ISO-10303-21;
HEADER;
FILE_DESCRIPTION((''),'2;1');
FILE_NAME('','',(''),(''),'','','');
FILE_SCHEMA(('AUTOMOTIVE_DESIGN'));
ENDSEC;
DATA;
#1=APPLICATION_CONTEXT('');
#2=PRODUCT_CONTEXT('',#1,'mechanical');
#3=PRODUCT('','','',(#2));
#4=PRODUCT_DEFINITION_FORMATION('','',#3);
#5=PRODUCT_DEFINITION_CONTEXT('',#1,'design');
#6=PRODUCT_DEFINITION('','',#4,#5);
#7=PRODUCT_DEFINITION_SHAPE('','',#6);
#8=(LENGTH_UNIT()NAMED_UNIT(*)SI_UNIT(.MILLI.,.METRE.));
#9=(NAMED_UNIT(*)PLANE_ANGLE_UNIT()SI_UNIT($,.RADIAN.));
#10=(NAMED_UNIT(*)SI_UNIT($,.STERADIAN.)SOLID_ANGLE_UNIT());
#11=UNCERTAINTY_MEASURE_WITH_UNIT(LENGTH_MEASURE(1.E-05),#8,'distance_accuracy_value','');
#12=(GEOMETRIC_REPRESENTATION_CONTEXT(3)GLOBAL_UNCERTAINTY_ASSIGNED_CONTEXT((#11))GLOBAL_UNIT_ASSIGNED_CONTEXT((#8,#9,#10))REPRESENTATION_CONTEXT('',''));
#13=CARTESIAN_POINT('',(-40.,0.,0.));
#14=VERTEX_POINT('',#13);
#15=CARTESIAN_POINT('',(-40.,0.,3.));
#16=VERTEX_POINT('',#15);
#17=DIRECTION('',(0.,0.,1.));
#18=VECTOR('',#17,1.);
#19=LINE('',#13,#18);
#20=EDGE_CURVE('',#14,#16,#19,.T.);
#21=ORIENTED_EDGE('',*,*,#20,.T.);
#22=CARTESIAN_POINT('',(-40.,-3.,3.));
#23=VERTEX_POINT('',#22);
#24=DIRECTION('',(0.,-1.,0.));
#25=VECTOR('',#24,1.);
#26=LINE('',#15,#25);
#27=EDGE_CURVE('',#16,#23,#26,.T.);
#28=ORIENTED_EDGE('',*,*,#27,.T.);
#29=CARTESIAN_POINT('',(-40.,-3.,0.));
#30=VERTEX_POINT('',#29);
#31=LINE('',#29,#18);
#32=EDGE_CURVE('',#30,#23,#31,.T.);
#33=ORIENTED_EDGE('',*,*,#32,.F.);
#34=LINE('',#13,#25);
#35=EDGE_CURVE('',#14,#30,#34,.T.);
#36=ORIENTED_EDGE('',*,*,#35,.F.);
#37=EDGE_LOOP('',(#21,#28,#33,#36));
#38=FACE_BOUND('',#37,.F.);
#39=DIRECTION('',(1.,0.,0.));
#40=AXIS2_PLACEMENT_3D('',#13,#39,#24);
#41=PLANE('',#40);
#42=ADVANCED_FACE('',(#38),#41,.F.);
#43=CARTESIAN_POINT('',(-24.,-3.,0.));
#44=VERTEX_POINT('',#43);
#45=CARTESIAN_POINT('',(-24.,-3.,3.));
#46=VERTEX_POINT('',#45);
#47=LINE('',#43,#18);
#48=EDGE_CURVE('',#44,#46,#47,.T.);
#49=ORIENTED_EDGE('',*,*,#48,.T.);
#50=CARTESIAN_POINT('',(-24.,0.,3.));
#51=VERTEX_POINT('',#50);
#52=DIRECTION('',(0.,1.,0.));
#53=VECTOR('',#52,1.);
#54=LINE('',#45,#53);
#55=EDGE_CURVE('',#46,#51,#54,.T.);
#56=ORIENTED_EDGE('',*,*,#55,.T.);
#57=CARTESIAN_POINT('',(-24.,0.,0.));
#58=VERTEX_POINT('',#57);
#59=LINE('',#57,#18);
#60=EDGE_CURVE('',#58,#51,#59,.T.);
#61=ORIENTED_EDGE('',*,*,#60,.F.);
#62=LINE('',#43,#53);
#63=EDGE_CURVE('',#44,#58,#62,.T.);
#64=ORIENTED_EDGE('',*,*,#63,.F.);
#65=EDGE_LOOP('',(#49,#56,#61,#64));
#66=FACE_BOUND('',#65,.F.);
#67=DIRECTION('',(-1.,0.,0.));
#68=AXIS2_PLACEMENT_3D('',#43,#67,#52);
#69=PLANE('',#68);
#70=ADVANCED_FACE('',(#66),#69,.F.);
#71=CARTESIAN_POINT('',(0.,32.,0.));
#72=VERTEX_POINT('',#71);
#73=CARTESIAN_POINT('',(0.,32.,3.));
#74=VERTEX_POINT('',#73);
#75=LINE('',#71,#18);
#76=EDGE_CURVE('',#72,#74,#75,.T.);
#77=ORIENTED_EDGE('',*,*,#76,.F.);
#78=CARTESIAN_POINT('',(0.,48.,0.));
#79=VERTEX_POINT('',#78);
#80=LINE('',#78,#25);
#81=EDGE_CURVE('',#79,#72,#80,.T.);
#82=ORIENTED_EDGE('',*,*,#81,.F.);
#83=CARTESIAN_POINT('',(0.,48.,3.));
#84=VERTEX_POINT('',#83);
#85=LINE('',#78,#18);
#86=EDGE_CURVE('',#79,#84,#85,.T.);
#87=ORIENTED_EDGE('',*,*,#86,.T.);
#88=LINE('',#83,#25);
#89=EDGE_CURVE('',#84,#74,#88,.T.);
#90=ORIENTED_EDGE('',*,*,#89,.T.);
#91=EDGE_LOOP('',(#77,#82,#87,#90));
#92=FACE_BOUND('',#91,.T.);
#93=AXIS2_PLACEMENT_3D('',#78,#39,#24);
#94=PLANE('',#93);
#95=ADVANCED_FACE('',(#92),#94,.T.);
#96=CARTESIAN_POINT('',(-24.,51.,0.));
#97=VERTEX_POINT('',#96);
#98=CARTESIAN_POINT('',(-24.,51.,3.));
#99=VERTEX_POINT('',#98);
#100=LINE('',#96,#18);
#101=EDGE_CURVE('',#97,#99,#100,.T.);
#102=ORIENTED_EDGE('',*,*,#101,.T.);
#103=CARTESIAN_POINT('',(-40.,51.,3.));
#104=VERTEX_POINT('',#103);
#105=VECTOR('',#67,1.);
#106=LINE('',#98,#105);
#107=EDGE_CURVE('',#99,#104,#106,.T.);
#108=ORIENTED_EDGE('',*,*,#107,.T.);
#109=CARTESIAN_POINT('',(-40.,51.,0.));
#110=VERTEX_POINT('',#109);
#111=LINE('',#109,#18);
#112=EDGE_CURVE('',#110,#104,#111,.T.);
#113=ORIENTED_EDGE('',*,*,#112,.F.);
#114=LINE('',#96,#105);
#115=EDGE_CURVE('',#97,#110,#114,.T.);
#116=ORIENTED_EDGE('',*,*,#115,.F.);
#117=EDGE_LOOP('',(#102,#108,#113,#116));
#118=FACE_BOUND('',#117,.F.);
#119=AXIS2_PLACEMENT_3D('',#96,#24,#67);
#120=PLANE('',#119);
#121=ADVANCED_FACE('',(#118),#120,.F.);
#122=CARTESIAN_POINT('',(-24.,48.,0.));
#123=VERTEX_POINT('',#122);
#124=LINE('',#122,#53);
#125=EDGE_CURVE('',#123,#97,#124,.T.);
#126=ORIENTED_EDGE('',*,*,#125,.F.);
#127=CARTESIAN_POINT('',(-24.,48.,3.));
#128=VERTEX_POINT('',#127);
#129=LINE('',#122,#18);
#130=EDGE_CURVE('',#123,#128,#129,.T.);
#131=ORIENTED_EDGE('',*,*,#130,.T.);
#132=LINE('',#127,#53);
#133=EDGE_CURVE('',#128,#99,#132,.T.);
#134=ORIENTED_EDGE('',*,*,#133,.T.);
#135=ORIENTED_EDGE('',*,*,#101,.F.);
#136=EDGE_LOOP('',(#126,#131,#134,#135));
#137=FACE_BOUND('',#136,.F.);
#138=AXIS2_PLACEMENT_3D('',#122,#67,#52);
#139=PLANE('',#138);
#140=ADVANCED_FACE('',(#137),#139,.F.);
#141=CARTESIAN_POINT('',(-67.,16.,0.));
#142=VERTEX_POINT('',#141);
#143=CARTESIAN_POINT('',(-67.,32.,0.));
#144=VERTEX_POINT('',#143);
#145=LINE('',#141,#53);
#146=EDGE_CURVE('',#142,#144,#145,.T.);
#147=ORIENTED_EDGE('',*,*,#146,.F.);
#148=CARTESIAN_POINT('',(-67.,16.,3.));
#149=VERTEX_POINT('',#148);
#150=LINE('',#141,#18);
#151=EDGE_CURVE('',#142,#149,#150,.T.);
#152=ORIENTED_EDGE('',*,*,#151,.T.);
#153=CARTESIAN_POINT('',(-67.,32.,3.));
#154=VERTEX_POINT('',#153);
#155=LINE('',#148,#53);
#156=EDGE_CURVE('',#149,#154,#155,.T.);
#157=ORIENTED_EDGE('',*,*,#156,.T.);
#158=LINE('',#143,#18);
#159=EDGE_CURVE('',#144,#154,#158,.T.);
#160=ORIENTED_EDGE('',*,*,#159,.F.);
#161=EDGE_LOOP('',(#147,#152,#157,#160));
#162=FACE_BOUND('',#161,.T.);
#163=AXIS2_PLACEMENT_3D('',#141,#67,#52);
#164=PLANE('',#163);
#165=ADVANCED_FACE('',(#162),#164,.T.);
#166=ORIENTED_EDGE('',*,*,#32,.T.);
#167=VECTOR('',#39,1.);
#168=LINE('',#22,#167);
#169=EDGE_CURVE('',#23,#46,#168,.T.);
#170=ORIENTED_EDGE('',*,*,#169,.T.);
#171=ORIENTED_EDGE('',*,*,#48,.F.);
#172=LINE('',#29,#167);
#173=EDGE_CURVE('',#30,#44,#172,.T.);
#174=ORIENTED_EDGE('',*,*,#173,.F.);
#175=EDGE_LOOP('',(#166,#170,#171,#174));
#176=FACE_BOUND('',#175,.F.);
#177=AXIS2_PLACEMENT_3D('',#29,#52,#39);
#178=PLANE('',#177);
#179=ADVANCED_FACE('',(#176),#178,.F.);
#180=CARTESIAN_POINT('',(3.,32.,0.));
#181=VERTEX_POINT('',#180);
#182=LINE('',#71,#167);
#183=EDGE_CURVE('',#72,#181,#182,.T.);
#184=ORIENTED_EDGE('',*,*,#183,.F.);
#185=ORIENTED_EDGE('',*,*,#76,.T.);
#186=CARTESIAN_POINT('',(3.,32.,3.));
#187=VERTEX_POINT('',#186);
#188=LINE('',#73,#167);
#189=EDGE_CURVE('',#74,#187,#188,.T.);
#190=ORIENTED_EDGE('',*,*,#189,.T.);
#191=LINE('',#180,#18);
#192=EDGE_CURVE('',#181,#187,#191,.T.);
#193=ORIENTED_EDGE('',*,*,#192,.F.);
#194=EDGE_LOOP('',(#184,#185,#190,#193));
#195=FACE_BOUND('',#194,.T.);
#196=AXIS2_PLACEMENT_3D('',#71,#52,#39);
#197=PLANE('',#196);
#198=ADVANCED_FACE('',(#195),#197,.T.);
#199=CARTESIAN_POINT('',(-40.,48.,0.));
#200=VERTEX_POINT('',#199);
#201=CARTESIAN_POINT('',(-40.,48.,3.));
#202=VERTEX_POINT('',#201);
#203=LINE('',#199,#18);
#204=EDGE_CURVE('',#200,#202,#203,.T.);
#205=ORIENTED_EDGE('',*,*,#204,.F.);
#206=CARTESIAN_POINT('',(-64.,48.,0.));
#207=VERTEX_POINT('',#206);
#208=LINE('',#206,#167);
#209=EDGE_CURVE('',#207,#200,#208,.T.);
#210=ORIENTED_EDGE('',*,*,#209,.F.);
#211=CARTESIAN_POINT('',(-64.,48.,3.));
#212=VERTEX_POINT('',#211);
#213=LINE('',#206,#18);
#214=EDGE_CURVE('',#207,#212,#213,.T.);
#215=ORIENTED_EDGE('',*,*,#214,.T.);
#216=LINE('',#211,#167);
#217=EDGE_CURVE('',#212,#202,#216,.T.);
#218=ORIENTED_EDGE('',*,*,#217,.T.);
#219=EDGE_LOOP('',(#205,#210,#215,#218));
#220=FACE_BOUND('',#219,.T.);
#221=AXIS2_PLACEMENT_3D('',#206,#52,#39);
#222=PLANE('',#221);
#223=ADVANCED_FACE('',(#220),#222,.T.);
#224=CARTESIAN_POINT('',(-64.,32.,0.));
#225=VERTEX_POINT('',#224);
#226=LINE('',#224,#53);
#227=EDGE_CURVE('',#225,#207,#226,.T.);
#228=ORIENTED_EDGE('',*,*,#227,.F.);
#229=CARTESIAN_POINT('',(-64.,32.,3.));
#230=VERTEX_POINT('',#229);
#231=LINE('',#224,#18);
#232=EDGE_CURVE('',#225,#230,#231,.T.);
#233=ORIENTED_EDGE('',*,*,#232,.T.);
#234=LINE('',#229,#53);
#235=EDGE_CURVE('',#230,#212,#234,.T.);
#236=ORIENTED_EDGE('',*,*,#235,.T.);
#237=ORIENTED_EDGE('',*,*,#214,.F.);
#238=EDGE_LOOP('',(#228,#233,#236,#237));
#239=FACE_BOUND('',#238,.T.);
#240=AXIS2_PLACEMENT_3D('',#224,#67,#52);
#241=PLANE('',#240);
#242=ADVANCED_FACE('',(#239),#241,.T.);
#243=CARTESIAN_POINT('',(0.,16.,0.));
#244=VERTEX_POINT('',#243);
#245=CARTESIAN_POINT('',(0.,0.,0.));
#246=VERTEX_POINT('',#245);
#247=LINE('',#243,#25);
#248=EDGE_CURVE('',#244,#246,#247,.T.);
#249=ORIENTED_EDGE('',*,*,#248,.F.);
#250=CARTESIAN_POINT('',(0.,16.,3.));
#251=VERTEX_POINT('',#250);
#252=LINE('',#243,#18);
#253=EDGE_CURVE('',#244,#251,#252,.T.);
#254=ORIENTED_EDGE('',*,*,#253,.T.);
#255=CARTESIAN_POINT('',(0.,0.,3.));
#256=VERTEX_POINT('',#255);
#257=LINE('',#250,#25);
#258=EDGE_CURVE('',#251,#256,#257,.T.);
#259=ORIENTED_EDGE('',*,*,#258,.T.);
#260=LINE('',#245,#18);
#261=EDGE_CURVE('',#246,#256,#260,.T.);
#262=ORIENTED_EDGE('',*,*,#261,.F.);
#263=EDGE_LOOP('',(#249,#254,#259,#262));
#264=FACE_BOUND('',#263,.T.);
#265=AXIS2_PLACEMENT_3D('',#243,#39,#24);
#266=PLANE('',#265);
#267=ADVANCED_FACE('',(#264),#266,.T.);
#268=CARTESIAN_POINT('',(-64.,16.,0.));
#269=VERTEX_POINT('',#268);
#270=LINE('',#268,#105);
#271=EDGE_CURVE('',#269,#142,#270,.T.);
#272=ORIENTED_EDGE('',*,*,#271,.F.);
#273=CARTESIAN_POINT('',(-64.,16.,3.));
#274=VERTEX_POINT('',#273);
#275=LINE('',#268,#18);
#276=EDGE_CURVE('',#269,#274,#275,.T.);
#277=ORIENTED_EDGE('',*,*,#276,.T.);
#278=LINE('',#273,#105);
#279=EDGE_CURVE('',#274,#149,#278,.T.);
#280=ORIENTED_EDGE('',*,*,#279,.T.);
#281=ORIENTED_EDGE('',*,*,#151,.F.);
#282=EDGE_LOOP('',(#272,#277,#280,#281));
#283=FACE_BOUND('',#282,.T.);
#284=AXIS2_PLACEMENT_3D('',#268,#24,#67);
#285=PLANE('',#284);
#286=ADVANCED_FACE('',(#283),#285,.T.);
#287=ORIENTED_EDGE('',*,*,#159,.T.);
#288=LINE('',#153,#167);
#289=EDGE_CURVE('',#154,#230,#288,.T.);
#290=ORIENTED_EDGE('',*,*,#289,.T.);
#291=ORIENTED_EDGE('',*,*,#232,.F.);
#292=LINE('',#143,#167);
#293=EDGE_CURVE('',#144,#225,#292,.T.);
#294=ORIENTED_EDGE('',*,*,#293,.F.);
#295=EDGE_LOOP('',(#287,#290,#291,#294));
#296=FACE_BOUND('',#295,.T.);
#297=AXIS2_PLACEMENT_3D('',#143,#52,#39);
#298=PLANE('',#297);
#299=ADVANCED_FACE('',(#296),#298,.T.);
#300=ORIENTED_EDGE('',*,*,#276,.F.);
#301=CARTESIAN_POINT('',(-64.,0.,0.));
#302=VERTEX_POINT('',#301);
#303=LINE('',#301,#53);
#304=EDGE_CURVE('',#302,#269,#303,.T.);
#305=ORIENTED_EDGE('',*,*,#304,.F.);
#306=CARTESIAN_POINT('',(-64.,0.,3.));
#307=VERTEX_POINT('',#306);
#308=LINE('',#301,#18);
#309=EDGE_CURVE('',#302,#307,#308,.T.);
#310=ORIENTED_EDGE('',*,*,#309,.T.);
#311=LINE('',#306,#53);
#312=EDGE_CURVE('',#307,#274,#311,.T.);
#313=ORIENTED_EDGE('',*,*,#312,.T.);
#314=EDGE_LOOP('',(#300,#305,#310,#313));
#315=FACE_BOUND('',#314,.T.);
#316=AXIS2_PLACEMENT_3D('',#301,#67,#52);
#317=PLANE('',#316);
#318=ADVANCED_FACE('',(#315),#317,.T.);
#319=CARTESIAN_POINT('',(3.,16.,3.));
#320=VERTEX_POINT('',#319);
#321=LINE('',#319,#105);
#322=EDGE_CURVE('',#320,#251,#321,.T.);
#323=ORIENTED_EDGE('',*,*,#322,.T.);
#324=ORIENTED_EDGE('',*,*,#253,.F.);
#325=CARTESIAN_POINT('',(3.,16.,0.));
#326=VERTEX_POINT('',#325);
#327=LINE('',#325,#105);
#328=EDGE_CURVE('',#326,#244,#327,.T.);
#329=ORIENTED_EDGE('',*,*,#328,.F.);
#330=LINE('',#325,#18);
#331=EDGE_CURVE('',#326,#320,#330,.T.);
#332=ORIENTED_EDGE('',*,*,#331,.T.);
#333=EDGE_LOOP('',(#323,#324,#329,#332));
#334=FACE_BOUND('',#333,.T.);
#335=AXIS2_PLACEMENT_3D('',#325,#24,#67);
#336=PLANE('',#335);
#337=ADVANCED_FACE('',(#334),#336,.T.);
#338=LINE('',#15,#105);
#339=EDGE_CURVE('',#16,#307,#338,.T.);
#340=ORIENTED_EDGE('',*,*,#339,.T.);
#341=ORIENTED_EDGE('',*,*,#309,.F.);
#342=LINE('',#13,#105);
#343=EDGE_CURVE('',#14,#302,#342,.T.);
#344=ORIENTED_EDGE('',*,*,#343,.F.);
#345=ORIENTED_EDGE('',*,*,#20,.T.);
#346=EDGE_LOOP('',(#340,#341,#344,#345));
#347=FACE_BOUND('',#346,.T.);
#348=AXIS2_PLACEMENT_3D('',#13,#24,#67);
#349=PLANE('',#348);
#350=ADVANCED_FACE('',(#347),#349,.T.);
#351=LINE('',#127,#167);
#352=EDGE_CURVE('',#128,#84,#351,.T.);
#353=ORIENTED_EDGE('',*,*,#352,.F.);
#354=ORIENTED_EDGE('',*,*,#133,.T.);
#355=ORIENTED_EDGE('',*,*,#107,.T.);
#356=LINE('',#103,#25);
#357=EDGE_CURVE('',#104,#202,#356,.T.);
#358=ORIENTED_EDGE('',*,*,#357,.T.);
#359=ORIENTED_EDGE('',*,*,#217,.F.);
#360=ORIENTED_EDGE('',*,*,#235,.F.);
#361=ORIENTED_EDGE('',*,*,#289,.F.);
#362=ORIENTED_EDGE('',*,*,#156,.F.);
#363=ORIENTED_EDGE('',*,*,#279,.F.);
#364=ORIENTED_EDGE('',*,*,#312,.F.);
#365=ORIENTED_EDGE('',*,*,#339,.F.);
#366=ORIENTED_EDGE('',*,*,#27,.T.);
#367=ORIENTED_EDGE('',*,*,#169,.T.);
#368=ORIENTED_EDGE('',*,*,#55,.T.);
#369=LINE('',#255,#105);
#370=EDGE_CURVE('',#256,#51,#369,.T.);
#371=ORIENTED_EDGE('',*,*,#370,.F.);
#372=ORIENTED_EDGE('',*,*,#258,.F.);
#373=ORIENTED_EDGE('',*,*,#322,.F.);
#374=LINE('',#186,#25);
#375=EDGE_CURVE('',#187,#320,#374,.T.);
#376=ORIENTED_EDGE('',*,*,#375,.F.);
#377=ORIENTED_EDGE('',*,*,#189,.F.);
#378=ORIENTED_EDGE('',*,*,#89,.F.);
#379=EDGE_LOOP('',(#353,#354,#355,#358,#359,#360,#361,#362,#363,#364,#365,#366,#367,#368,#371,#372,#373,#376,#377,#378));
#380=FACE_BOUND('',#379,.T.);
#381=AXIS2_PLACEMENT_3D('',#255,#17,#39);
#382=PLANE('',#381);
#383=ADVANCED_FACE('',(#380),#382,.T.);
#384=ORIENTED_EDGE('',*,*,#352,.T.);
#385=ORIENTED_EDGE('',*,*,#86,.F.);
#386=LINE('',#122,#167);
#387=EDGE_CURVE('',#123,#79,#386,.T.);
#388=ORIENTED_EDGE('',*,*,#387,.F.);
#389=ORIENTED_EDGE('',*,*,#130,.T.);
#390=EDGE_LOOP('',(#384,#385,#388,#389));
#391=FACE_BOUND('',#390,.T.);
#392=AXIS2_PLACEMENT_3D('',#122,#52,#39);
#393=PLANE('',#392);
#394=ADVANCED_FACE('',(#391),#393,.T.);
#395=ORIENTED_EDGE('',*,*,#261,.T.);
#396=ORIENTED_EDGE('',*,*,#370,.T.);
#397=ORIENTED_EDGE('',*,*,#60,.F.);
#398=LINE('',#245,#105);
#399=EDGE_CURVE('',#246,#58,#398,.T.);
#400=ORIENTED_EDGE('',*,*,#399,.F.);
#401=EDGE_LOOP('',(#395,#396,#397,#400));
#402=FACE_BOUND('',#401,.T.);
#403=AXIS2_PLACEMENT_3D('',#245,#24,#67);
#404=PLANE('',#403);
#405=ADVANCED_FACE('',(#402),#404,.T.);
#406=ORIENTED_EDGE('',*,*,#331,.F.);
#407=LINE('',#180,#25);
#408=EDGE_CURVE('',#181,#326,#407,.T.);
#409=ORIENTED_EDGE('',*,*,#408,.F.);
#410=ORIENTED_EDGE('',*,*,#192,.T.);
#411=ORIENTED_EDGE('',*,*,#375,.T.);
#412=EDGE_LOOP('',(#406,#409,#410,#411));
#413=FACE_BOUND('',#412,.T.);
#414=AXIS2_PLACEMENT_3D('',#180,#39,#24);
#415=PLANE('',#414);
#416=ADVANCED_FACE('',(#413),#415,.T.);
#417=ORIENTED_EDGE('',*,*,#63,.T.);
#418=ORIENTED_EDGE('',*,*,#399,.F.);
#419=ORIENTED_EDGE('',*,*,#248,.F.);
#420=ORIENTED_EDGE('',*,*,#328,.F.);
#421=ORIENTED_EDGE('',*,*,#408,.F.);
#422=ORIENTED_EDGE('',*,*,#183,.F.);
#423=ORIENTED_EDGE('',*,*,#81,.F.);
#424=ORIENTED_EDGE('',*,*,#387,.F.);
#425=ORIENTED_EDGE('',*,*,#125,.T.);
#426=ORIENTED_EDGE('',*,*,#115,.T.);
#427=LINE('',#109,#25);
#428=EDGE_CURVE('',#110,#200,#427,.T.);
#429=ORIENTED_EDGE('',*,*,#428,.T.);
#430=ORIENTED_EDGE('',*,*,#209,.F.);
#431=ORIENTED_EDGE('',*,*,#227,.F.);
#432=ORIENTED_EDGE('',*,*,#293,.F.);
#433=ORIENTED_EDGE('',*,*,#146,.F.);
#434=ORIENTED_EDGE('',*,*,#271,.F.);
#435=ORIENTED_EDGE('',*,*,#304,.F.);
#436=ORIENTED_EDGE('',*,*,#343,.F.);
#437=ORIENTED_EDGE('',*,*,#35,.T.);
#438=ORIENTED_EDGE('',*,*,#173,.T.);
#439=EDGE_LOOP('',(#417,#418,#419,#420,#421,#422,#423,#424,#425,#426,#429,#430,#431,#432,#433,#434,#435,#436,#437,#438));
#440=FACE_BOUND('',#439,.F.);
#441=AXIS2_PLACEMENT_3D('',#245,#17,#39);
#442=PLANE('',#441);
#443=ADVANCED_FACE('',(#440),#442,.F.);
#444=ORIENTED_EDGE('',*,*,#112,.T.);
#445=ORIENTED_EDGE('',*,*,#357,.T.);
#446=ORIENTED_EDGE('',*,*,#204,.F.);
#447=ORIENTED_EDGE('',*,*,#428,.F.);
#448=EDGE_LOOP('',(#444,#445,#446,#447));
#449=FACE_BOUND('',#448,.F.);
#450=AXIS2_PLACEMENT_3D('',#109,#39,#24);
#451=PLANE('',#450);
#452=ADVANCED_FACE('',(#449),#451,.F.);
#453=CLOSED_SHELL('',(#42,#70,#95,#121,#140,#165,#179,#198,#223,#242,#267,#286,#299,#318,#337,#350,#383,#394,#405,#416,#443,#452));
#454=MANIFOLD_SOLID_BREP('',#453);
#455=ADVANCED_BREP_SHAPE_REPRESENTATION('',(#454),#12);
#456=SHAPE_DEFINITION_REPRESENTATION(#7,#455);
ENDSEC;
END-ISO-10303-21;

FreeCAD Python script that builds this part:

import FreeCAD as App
import Part
import Sketcher

V = App.Vector
Q = App.Units.Quantity

doc = App.newDocument("Part")
params = doc.addObject("Spreadsheet::Sheet", "Params")
for row, (alias, value) in enumerate([
    ("sketch1_width", "24 mm"),
    ("sketch1_width2", "16 mm"),
    ("sketch1_width3", "3 mm"),
    ("pad1_length", "3 mm"),
], start=1):
    params.set(f"A{row}", alias)
    params.set(f"B{row}", "=" + value)
    params.setAlias(f"B{row}", alias)

body = doc.addObject("PartDesign::Body", "Body")

# Sketch on XY plane
sketch1 = body.newObject("Sketcher::SketchObject", "Sketch")
sketch1.AttachmentSupport = (doc.getObject("XY_Plane"), [""])
sketch1.MapMode = "FlatFace"
sketch1.addGeometry(Part.LineSegment(V(0, 48, 0), V(-24, 48, 0)), False)
sketch1.addGeometry(Part.LineSegment(V(-24, 48, 0), V(-24, 51, 0)), False)
sketch1.addGeometry(Part.LineSegment(V(-24, 51, 0), V(-40, 51, 0)), False)
sketch1.addGeometry(Part.LineSegment(V(-40, 51, 0), V(-40, 48, 0)), False)
sketch1.addGeometry(Part.LineSegment(V(-40, 48, 0), V(-64, 48, 0)), False)
sketch1.addGeometry(Part.LineSegment(V(-64, 48, 0), V(-64, 32, 0)), False)
sketch1.addGeometry(Part.LineSegment(V(-64, 32, 0), V(-67, 32, 0)), False)
sketch1.addGeometry(Part.LineSegment(V(-67, 32, 0), V(-67, 16, 0)), False)
sketch1.addGeometry(Part.LineSegment(V(-67, 16, 0), V(-64, 16, 0)), False)
sketch1.addGeometry(Part.LineSegment(V(-64, 16, 0), V(-64, 0, 0)), False)
sketch1.addGeometry(Part.LineSegment(V(-64, 0, 0), V(-40, 0, 0)), False)
sketch1.addGeometry(Part.LineSegment(V(-40, 0, 0), V(-40, -3, 0)), False)
sketch1.addGeometry(Part.LineSegment(V(-40, -3, 0), V(-24, -3, 0)), False)
sketch1.addGeometry(Part.LineSegment(V(-24, -3, 0), V(-24, 0, 0)), False)
sketch1.addGeometry(Part.LineSegment(V(-24, 0, 0), V(0, 0, 0)), False)
sketch1.addGeometry(Part.LineSegment(V(0, 0, 0), V(0, 16, 0)), False)
sketch1.addGeometry(Part.LineSegment(V(0, 16, 0), V(3, 16, 0)), False)
sketch1.addGeometry(Part.LineSegment(V(3, 16, 0), V(3, 32, 0)), False)
sketch1.addGeometry(Part.LineSegment(V(3, 32, 0), V(0, 32, 0)), False)
sketch1.addGeometry(Part.LineSegment(V(0, 32, 0), V(0, 48, 0)), False)
sketch1.addConstraint(Sketcher.Constraint("Coincident", 0, 2, 1, 1))
sketch1.addConstraint(Sketcher.Constraint("Coincident", 1, 2, 2, 1))
sketch1.addConstraint(Sketcher.Constraint("Coincident", 2, 2, 3, 1))
sketch1.addConstraint(Sketcher.Constraint("Coincident", 3, 2, 4, 1))
sketch1.addConstraint(Sketcher.Constraint("Coincident", 4, 2, 5, 1))
sketch1.addConstraint(Sketcher.Constraint("Coincident", 5, 2, 6, 1))
sketch1.addConstraint(Sketcher.Constraint("Coincident", 6, 2, 7, 1))
sketch1.addConstraint(Sketcher.Constraint("Coincident", 7, 2, 8, 1))
sketch1.addConstraint(Sketcher.Constraint("Coincident", 8, 2, 9, 1))
sketch1.addConstraint(Sketcher.Constraint("Coincident", 9, 2, 10, 1))
sketch1.addConstraint(Sketcher.Constraint("Coincident", 10, 2, 11, 1))
sketch1.addConstraint(Sketcher.Constraint("Coincident", 11, 2, 12, 1))
sketch1.addConstraint(Sketcher.Constraint("Coincident", 12, 2, 13, 1))
sketch1.addConstraint(Sketcher.Constraint("Coincident", 13, 2, 14, 1))
sketch1.addConstraint(Sketcher.Constraint("Coincident", 14, 2, 15, 1))
sketch1.addConstraint(Sketcher.Constraint("Coincident", 15, 2, 16, 1))
sketch1.addConstraint(Sketcher.Constraint("Coincident", 16, 2, 17, 1))
sketch1.addConstraint(Sketcher.Constraint("Coincident", 17, 2, 18, 1))
sketch1.addConstraint(Sketcher.Constraint("Coincident", 18, 2, 19, 1))
sketch1.addConstraint(Sketcher.Constraint("Coincident", 19, 2, 0, 1))
sketch1.addConstraint(Sketcher.Constraint("Horizontal", 0))
sketch1.addConstraint(Sketcher.Constraint("Vertical", 1))
sketch1.addConstraint(Sketcher.Constraint("Horizontal", 2))
sketch1.addConstraint(Sketcher.Constraint("Vertical", 3))
sketch1.addConstraint(Sketcher.Constraint("Horizontal", 4))
sketch1.addConstraint(Sketcher.Constraint("Vertical", 5))
sketch1.addConstraint(Sketcher.Constraint("Horizontal", 6))
sketch1.addConstraint(Sketcher.Constraint("Vertical", 7))
sketch1.addConstraint(Sketcher.Constraint("Horizontal", 8))
sketch1.addConstraint(Sketcher.Constraint("Vertical", 9))
sketch1.addConstraint(Sketcher.Constraint("Horizontal", 10))
sketch1.addConstraint(Sketcher.Constraint("Vertical", 11))
sketch1.addConstraint(Sketcher.Constraint("Horizontal", 12))
sketch1.addConstraint(Sketcher.Constraint("Vertical", 13))
sketch1.addConstraint(Sketcher.Constraint("Horizontal", 14))
sketch1.addConstraint(Sketcher.Constraint("Vertical", 15))
sketch1.addConstraint(Sketcher.Constraint("Horizontal", 16))
sketch1.addConstraint(Sketcher.Constraint("Vertical", 17))
sketch1.addConstraint(Sketcher.Constraint("Horizontal", 18))
sketch1.addConstraint(Sketcher.Constraint("Vertical", 19))
sketch1.addConstraint(Sketcher.Constraint("Coincident", 14, 2, -1, 1))
sketch1.addConstraint(Sketcher.Constraint("PointOnObject", 9, 2, -1))
sketch1.addConstraint(Sketcher.Constraint("PointOnObject", 18, 2, -2))
sketch1.addConstraint(Sketcher.Constraint("Horizontal", 0, 2, 3, 2))
sketch1.addConstraint(Sketcher.Constraint("Horizontal", 8, 2, 15, 2))
sketch1.addConstraint(Sketcher.Constraint("Horizontal", 6, 2, 17, 2))
sketch1.addConstraint(Sketcher.Constraint("Vertical", 5, 2, 8, 2))
sketch1.addConstraint(Sketcher.Constraint("Vertical", 3, 2, 10, 2))
sketch1.addConstraint(Sketcher.Constraint("Vertical", 1, 2, 12, 2))
sketch1.addConstraint(Sketcher.Constraint("Equal", 0, 4))
sketch1.addConstraint(Sketcher.Constraint("Equal", 8, 16))
sketch1.addConstraint(Sketcher.Constraint("Equal", 18, 1))
sketch1.addConstraint(Sketcher.Constraint("Equal", 12, 5))
sketch1.addConstraint(Sketcher.Constraint("Equal", 5, 7))
sketch1.addConstraint(Sketcher.Constraint("Equal", 7, 9))
sketch1.addConstraint(Sketcher.Constraint("Equal", 3, 11))
sketch1.addConstraint(Sketcher.Constraint("DistanceX", 0, 2, 0, 1, Q("24 mm")))
sketch1.addConstraint(Sketcher.Constraint("DistanceX", 2, 2, 2, 1, Q("16 mm")))
sketch1.addConstraint(Sketcher.Constraint("DistanceX", 6, 2, 6, 1, Q("3 mm")))
sketch1.setExpression("Constraints[56]", "Params.sketch1_width")
sketch1.setExpression("Constraints[57]", "Params.sketch1_width2")
sketch1.setExpression("Constraints[58]", "Params.sketch1_width3")
pad1 = body.newObject("PartDesign::Pad", "Pad")
pad1.Profile = sketch1
pad1.setExpression("Length", "Params.pad1_length")

doc.recompute()
